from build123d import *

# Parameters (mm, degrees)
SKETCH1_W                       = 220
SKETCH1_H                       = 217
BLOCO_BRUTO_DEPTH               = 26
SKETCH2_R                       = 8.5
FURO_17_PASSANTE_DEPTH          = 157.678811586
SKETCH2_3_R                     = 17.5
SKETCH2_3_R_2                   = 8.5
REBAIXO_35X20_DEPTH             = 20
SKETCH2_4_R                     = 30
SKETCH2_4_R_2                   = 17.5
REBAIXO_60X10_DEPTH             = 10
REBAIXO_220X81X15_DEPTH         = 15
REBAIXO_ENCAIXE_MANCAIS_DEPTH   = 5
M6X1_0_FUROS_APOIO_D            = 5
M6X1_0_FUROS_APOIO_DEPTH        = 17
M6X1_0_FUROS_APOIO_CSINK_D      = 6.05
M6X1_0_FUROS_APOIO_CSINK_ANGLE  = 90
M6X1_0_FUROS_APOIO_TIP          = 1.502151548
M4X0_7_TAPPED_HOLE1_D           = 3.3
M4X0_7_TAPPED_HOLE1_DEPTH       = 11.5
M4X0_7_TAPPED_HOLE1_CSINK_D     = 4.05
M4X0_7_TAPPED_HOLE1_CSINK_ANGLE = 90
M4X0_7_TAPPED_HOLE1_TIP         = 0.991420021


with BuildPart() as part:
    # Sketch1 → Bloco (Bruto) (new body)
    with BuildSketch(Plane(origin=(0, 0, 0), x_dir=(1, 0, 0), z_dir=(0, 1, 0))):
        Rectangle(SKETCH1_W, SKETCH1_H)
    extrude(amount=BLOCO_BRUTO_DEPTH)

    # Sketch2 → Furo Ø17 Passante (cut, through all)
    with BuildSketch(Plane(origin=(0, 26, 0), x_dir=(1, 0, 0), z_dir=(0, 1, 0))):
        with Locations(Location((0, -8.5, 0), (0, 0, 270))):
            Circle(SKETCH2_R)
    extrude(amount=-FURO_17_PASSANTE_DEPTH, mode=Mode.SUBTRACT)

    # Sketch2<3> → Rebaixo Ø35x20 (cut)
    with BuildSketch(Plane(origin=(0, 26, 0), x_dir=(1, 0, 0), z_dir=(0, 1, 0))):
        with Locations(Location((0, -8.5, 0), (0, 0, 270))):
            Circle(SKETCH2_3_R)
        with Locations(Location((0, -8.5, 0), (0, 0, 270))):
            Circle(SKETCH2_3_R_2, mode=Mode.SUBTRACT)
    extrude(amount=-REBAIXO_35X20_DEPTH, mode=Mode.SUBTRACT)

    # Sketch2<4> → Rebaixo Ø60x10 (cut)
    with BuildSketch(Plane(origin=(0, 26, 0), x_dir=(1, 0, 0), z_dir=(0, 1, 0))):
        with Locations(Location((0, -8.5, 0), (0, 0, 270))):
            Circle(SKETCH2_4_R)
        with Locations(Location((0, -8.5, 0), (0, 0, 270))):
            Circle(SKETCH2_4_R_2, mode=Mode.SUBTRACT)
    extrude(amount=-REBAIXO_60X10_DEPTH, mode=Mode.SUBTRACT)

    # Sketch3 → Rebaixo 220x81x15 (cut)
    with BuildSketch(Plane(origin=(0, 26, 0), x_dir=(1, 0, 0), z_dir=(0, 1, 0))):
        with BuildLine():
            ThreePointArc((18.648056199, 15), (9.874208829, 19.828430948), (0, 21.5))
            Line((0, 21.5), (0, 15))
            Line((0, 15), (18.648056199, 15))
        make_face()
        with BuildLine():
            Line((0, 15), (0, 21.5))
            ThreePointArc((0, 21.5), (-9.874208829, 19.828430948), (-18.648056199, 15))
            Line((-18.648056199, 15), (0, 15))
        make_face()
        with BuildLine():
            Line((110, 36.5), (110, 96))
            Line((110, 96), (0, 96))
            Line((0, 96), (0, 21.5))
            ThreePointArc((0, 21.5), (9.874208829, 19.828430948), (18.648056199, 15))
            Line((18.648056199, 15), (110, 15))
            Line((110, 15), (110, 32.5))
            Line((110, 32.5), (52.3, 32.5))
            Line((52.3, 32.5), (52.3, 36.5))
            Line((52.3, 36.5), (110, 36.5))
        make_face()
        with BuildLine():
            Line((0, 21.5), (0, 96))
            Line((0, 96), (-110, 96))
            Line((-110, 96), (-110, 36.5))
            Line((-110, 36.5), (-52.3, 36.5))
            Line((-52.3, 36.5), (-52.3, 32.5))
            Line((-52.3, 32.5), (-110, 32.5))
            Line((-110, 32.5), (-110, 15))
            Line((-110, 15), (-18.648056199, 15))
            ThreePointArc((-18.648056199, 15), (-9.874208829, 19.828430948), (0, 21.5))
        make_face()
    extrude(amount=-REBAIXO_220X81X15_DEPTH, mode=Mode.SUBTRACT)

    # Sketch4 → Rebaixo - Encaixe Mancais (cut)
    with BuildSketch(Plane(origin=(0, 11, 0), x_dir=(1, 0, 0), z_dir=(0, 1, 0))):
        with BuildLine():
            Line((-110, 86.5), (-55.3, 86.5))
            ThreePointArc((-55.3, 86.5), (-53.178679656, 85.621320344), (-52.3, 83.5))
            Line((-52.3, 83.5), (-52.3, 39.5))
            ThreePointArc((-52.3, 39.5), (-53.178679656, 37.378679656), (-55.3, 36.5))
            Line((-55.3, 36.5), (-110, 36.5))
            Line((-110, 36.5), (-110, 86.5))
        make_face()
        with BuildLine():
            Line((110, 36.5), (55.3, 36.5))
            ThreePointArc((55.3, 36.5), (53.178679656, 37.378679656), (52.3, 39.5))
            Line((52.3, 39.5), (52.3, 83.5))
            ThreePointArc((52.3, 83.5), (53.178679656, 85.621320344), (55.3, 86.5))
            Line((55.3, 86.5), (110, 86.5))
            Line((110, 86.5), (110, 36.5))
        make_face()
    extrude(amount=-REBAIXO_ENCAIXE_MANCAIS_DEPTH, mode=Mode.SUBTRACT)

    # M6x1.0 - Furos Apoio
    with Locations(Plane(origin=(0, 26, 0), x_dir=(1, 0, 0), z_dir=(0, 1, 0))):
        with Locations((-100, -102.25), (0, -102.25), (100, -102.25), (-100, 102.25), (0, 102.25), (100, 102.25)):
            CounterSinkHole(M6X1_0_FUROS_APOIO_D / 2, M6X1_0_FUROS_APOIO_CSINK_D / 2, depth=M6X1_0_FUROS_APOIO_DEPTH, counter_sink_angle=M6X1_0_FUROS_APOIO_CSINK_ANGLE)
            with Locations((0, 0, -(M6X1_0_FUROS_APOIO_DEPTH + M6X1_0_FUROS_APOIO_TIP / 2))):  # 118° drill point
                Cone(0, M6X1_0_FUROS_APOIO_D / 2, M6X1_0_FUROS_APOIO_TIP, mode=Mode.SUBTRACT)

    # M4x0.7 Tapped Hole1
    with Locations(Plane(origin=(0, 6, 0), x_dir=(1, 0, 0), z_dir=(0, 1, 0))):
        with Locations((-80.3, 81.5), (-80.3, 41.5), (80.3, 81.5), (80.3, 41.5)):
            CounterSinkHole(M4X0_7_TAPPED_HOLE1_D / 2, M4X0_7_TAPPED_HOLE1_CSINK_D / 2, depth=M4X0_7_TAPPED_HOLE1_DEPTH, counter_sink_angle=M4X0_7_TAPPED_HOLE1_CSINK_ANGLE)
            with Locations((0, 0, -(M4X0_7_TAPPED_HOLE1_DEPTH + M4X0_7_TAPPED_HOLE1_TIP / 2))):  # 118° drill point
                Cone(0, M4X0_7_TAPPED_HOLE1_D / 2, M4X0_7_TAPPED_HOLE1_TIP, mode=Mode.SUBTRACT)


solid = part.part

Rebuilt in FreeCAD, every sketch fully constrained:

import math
import FreeCAD as App
import Part
import Sketcher
from FreeCAD import Vector
Q = App.Units.Quantity


def add_polygon(sketch, points):
    """Adds a closed chain of lines whose ends are joined by coincident constraints."""
    first, n = sketch.GeometryCount, len(points)
    for a, b in zip(points, points[1:] + points[:1]):
        sketch.addGeometry(Part.LineSegment(App.Vector(*a, 0), App.Vector(*b, 0)), False)
    for i in range(n):
        sketch.addConstraint(Sketcher.Constraint("Coincident", first + i, 2, first + (i + 1) % n, 1))

doc = App.newDocument("Part")
body = doc.addObject("PartDesign::Body", "Body")

sketch1 = doc.addObject("Sketcher::SketchObject", "Sketch")
body.addObject(sketch1)
sketch1.AttachmentSupport = (doc.XZ_Plane, [""])
sketch1.MapMode = "FlatFace"
add_polygon(sketch1, [(-110, -108), (-110, 108), (110, 108), (110, -108)])
sketch1.addConstraint(Sketcher.Constraint("Vertical", 0))
sketch1.addConstraint(Sketcher.Constraint("Horizontal", 1))
sketch1.addConstraint(Sketcher.Constraint("Vertical", 2))
sketch1.addConstraint(Sketcher.Constraint("Horizontal", 3))
sketch1.addConstraint(Sketcher.Constraint("Symmetric", 0, 2, 2, 2, -1, 1))
sketch1.addConstraint(Sketcher.Constraint("DistanceX", 1, 1, 1, 2, Q("220 mm")))
sketch1.addConstraint(Sketcher.Constraint("DistanceY", 0, 1, 0, 2, Q("217 mm")))
pad1 = doc.addObject("PartDesign::Pad", "Pad")
body.addObject(pad1)
pad1.Profile = sketch1
pad1.Length = 26
pad1.Reversed = True

sketch2 = doc.addObject("Sketcher::SketchObject", "Sketch001")
body.addObject(sketch2)
sketch2.AttachmentSupport = (doc.XZ_Plane, [""])
sketch2.MapMode = "FlatFace"
sketch2.AttachmentOffset = App.Placement(Vector(0, 0, -26), App.Rotation())
sketch2.addGeometry(Part.Circle(Vector(0, 8, 0), Vector(0, 0, 1), 8), False)
sketch2.addConstraint(Sketcher.Constraint("PointOnObject", 0, 3, -2))
sketch2.addConstraint(Sketcher.Constraint("Diameter", 0, Q("17 mm")))
sketch2.addConstraint(Sketcher.Constraint("DistanceY", -1, 1, 0, 3, Q("8.5 mm")))
pocket1 = doc.addObject("PartDesign::Pocket", "Pocket")
body.addObject(pocket1)
pocket1.Profile = sketch2
pocket1.Type = "ThroughAll"
pocket1.Reversed = True

sketch3 = doc.addObject("Sketcher::SketchObject", "Sketch002")
body.addObject(sketch3)
sketch3.AttachmentSupport = (doc.XZ_Plane, [""])
sketch3.MapMode = "FlatFace"
sketch3.AttachmentOffset = App.Placement(Vector(0, 0, -26), App.Rotation())
sketch3.addGeometry(Part.Circle(Vector(0, 8, 0), Vector(0, 0, 1), 18), False)
sketch3.addGeometry(Part.Circle(Vector(0, 8, 0), Vector(0, 0, 1), 8), False)
sketch3.addConstraint(Sketcher.Constraint("Coincident", 1, 3, 0, 3))
sketch3.addConstraint(Sketcher.Constraint("PointOnObject", 0, 3, -2))
sketch3.addConstraint(Sketcher.Constraint("Diameter", 0, Q("35 mm")))
sketch3.addConstraint(Sketcher.Constraint("Diameter", 1, Q("17 mm")))
sketch3.addConstraint(Sketcher.Constraint("DistanceY", -1, 1, 0, 3, Q("8.5 mm")))
pocket2 = doc.addObject("PartDesign::Pocket", "Pocket001")
body.addObject(pocket2)
pocket2.Profile = sketch3
pocket2.Length = 20
pocket2.Reversed = True

sketch4 = doc.addObject("Sketcher::SketchObject", "Sketch003")
body.addObject(sketch4)
sketch4.AttachmentSupport = (doc.XZ_Plane, [""])
sketch4.MapMode = "FlatFace"
sketch4.AttachmentOffset = App.Placement(Vector(0, 0, -26), App.Rotation())
sketch4.addGeometry(Part.Circle(Vector(0, 8, 0), Vector(0, 0, 1), 30), False)
sketch4.addGeometry(Part.Circle(Vector(0, 8, 0), Vector(0, 0, 1), 18), False)
sketch4.addConstraint(Sketcher.Constraint("Coincident", 1, 3, 0, 3))
sketch4.addConstraint(Sketcher.Constraint("PointOnObject", 0, 3, -2))
sketch4.addConstraint(Sketcher.Constraint("Diameter", 0, Q("60 mm")))
sketch4.addConstraint(Sketcher.Constraint("Diameter", 1, Q("35 mm")))
sketch4.addConstraint(Sketcher.Constraint("DistanceY", -1, 1, 0, 3, Q("8.5 mm")))
pocket3 = doc.addObject("PartDesign::Pocket", "Pocket002")
body.addObject(pocket3)
pocket3.Profile = sketch4
pocket3.Length = 10
pocket3.Reversed = True

sketch5 = doc.addObject("Sketcher::SketchObject", "Sketch004")
body.addObject(sketch5)
sketch5.AttachmentSupport = (doc.XZ_Plane, [""])
sketch5.MapMode = "FlatFace"
sketch5.AttachmentOffset = App.Placement(Vector(0, 0, -26), App.Rotation())
add_polygon(sketch5, [(110, -15), (110, -32.5), (52.3, -32.5), (52.3, -36.5), (110, -36.5), (110, -96), (-110, -96), (-110, -36.5), (-52.3, -36.5), (-52.3, -32.5), (-110, -32.5), (-110, -15)])
sketch5.addConstraint(Sketcher.Constraint("Vertical", 0))
sketch5.addConstraint(Sketcher.Constraint("Horizontal", 1))
sketch5.addConstraint(Sketcher.Constraint("Vertical", 2))
sketch5.addConstraint(Sketcher.Constraint("Horizontal", 3))
sketch5.addConstraint(Sketcher.Constraint("Vertical", 4))
sketch5.addConstraint(Sketcher.Constraint("Horizontal", 5))
sketch5.addConstraint(Sketcher.Constraint("Vertical", 6))
sketch5.addConstraint(Sketcher.Constraint("Horizontal", 7))
sketch5.addConstraint(Sketcher.Constraint("Vertical", 8))
sketch5.addConstraint(Sketcher.Constraint("Horizontal", 9))
sketch5.addConstraint(Sketcher.Constraint("Vertical", 10))
sketch5.addConstraint(Sketcher.Constraint("Horizontal", 11))
sketch5.addConstraint(Sketcher.Constraint("Symmetric", 3, 2, 6, 2, -2))
sketch5.addConstraint(Sketcher.Constraint("Symmetric", 1, 2, 8, 2, -2))
sketch5.addConstraint(Sketcher.Constraint("Vertical", 0, 2, 3, 2))
sketch5.addConstraint(Sketcher.Constraint("Vertical", 6, 2, 9, 2))
sketch5.addConstraint(Sketcher.Constraint("DistanceX", 5, 2, 5, 1, Q("220 mm")))
sketch5.addConstraint(Sketcher.Constraint("DistanceY", 2, 2, 2, 1, Q("4 mm")))
sketch5.addConstraint(Sketcher.Constraint("DistanceX", 1, 2, 1, 1, Q("57.7 mm")))
sketch5.addConstraint(Sketcher.Constraint("DistanceY", 0, 2, 0, 1, Q("17.5 mm")))
sketch5.addConstraint(Sketcher.Constraint("DistanceY", 4, 2, 4, 1, Q("59.5 mm")))
sketch5.addConstraint(Sketcher.Constraint("DistanceY", 4, 2, -1, 1, Q("96 mm")))
pocket4 = doc.addObject("PartDesign::Pocket", "Pocket003")
body.addObject(pocket4)
pocket4.Profile = sketch5
pocket4.Length = 15
pocket4.Reversed = True

sketch6 = doc.addObject("Sketcher::SketchObject", "Sketch005")
body.addObject(sketch6)
sketch6.AttachmentSupport = (doc.XZ_Plane, [""])
sketch6.MapMode = "FlatFace"
sketch6.AttachmentOffset = App.Placement(Vector(0, 0, -11), App.Rotation())
sketch6.addGeometry(Part.LineSegment(Vector(-55.3, -86.5, 0), Vector(-110, -86.5, 0)), False)
sketch6.addGeometry(Part.LineSegment(Vector(-110, -86.5, 0), Vector(-110, -36.5, 0)), False)
sketch6.addGeometry(Part.LineSegment(Vector(-110, -36.5, 0), Vector(-55.3, -36.5, 0)), False)
sketch6.addGeometry(Part.ArcOfCircle(Part.Circle(Vector(-55.3, -39.5, 0), Vector(0, 0, 1), 3), math.radians(0), math.radians(90)), False)
sketch6.addGeometry(Part.LineSegment(Vector(-52.3, -39.5, 0), Vector(-52.3, -83.5, 0)), False)
sketch6.addGeometry(Part.ArcOfCircle(Part.Circle(Vector(-55.3, -83.5, 0), Vector(0, 0, 1), 3), math.radians(-90), math.radians(0)), False)
sketch6.addGeometry(Part.LineSegment(Vector(55.3, -36.5, 0), Vector(110, -36.5, 0)), False)
sketch6.addGeometry(Part.LineSegment(Vector(110, -36.5, 0), Vector(110, -86.5, 0)), False)
sketch6.addGeometry(Part.LineSegment(Vector(110, -86.5, 0), Vector(55.3, -86.5, 0)), False)
sketch6.addGeometry(Part.ArcOfCircle(Part.Circle(Vector(55.3, -83.5, 0), Vector(0, 0, 1), 3), math.radians(180), math.radians(270)), False)
sketch6.addGeometry(Part.LineSegment(Vector(52.3, -83.5, 0), Vector(52.3, -39.5, 0)), False)
sketch6.addGeometry(Part.ArcOfCircle(Part.Circle(Vector(55.3, -39.5, 0), Vector(0, 0, 1), 3), math.radians(90), math.radians(180)), False)
sketch6.addConstraint(Sketcher.Constraint("Coincident", 0, 2, 1, 1))
sketch6.addConstraint(Sketcher.Constraint("Coincident", 1, 2, 2, 1))
sketch6.addConstraint(Sketcher.Constraint("Tangent", 2, 2, 3, 2))
sketch6.addConstraint(Sketcher.Constraint("Tangent", 3, 1, 4, 1))
sketch6.addConstraint(Sketcher.Constraint("Tangent", 4, 2, 5, 2))
sketch6.addConstraint(Sketcher.Constraint("Tangent", 5, 1, 0, 1))
sketch6.addConstraint(Sketcher.Constraint("Coincident", 6, 2, 7, 1))
sketch6.addConstraint(Sketcher.Constraint("Coincident", 7, 2, 8, 1))
sketch6.addConstraint(Sketcher.Constraint("Tangent", 8, 2, 9, 2))
sketch6.addConstraint(Sketcher.Constraint("Tangent", 9, 1, 10, 1))
sketch6.addConstraint(Sketcher.Constraint("Tangent", 10, 2, 11, 2))
sketch6.addConstraint(Sketcher.Constraint("Tangent", 11, 1, 6, 1))
sketch6.addConstraint(Sketcher.Constraint("Horizontal", 0))
sketch6.addConstraint(Sketcher.Constraint("Vertical", 1))
sketch6.addConstraint(Sketcher.Constraint("Horizontal", 2))
sketch6.addConstraint(Sketcher.Constraint("Vertical", 4))
sketch6.addConstraint(Sketcher.Constraint("Horizontal", 6))
sketch6.addConstraint(Sketcher.Constraint("Vertical", 7))
sketch6.addConstraint(Sketcher.Constraint("Horizontal", 8))
sketch6.addConstraint(Sketcher.Constraint("Vertical", 10))
sketch6.addConstraint(Sketcher.Constraint("Equal", 3, 5))
sketch6.addConstraint(Sketcher.Constraint("Equal", 5, 9))
sketch6.addConstraint(Sketcher.Constraint("Equal", 9, 11))
sketch6.addConstraint(Sketcher.Constraint("Symmetric", 5, 3, 9, 3, -2))
sketch6.addConstraint(Sketcher.Constraint("Symmetric", 1, 2, 6, 2, -2))
sketch6.addConstraint(Sketcher.Constraint("Radius", 3, Q("3 mm")))
sketch6.addConstraint(Sketcher.Constraint("DistanceY", 1, 1, 1, 2, Q("50 mm")))
sketch6.addConstraint(Sketcher.Constraint("DistanceX", 0, 2, 0, 1, Q("54.7 mm")))
sketch6.addConstraint(Sketcher.Constraint("DistanceX", 0, 2, -1, 1, Q("110 mm")))
sketch6.addConstraint(Sketcher.Constraint("DistanceY", 3, 3, -1, 1, Q("39.5 mm")))
pocket5 = doc.addObject("PartDesign::Pocket", "Pocket004")
body.addObject(pocket5)
pocket5.Profile = sketch6
pocket5.Length = 5
pocket5.Reversed = True

sketch7 = doc.addObject("Sketcher::SketchObject", "Sketch006")
body.addObject(sketch7)
sketch7.AttachmentSupport = (doc.XZ_Plane, [""])
sketch7.MapMode = "FlatFace"
sketch7.AttachmentOffset = App.Placement(Vector(0, 0, -26), App.Rotation())
sketch7.addGeometry(Part.Circle(Vector(-100, 102.2, 0), Vector(0, 0, 1), 2.5), False)
sketch7.addGeometry(Part.Circle(Vector(0, 102.2, 0), Vector(0, 0, 1), 2.5), False)
sketch7.addGeometry(Part.Circle(Vector(100, 102.2, 0), Vector(0, 0, 1), 2.5), False)
sketch7.addGeometry(Part.Circle(Vector(-100, -102.2, 0), Vector(0, 0, 1), 2.5), False)
sketch7.addGeometry(Part.Circle(Vector(0, -102.2, 0), Vector(0, 0, 1), 2.5), False)
sketch7.addGeometry(Part.Circle(Vector(100, -102.2, 0), Vector(0, 0, 1), 2.5), False)
sketch7.addConstraint(Sketcher.Constraint("Equal", 0, 1))
sketch7.addConstraint(Sketcher.Constraint("Equal", 1, 2))
sketch7.addConstraint(Sketcher.Constraint("Equal", 2, 3))
sketch7.addConstraint(Sketcher.Constraint("Equal", 3, 4))
sketch7.addConstraint(Sketcher.Constraint("Equal", 4, 5))
sketch7.addConstraint(Sketcher.Constraint("Symmetric", 2, 3, 3, 3, -1, 1))
sketch7.addConstraint(Sketcher.Constraint("Symmetric", 1, 3, 4, 3, -1, 1))
sketch7.addConstraint(Sketcher.Constraint("Symmetric", 0, 3, 5, 3, -1, 1))
sketch7.addConstraint(Sketcher.Constraint("Symmetric", 0, 3, 2, 3, -2))
sketch7.addConstraint(Sketcher.Constraint("PointOnObject", 1, 3, -2))
sketch7.addConstraint(Sketcher.Constraint("Horizontal", 0, 3, 1, 3))
sketch7.addConstraint(Sketcher.Constraint("Diameter", 0, Q("5 mm")))
sketch7.addConstraint(Sketcher.Constraint("DistanceX", 0, 3, -1, 1, Q("100 mm")))
sketch7.addConstraint(Sketcher.Constraint("DistanceY", 3, 3, 0, 3, Q("204.5 mm")))
doc.recompute()
hole = doc.addObject("PartDesign::Hole", "Hole")
body.addObject(hole)
hole.Profile = sketch7
hole.ThreadType = "None"
hole.Diameter = 5
hole.DepthType = "Dimension"
hole.Depth = 17
hole.DrillPoint = "Angled"
hole.DrillPointAngle = 118
hole.HoleCutType = "Countersink"
hole.HoleCutDiameter = 6.05
hole.HoleCutCountersinkAngle = 90
hole.Reversed = True

sketch8 = doc.addObject("Sketcher::SketchObject", "Sketch007")
body.addObject(sketch8)
sketch8.AttachmentSupport = (doc.XZ_Plane, [""])
sketch8.MapMode = "FlatFace"
sketch8.AttachmentOffset = App.Placement(Vector(0, 0, -6), App.Rotation())
sketch8.addGeometry(Part.Circle(Vector(-80.3, -81.5, 0), Vector(0, 0, 1), 1.6), False)
sketch8.addGeometry(Part.Circle(Vector(-80.3, -41.5, 0), Vector(0, 0, 1), 1.6), False)
sketch8.addGeometry(Part.Circle(Vector(80.3, -81.5, 0), Vector(0, 0, 1), 1.6), False)
sketch8.addGeometry(Part.Circle(Vector(80.3, -41.5, 0), Vector(0, 0, 1), 1.6), False)
sketch8.addConstraint(Sketcher.Constraint("Equal", 0, 1))
sketch8.addConstraint(Sketcher.Constraint("Equal", 1, 2))
sketch8.addConstraint(Sketcher.Constraint("Equal", 2, 3))
sketch8.addConstraint(Sketcher.Constraint("Symmetric", 0, 3, 2, 3, -2))
sketch8.addConstraint(Sketcher.Constraint("Symmetric", 1, 3, 3, 3, -2))
sketch8.addConstraint(Sketcher.Constraint("Vertical", 0, 3, 1, 3))
sketch8.addConstraint(Sketcher.Constraint("Diameter", 0, Q("3.3 mm")))
sketch8.addConstraint(Sketcher.Constraint("DistanceY", 0, 3, 1, 3, Q("40 mm")))
sketch8.addConstraint(Sketcher.Constraint("DistanceX", 0, 3, -1, 1, Q("80.3 mm")))
sketch8.addConstraint(Sketcher.Constraint("DistanceY", 0, 3, -1, 1, Q("81.5 mm")))
doc.recompute()
hole2 = doc.addObject("PartDesign::Hole", "Hole001")
body.addObject(hole2)
hole2.Profile = sketch8
hole2.ThreadType = "None"
hole2.Diameter = 3.3
hole2.DepthType = "Dimension"
hole2.Depth = 11.5
hole2.DrillPoint = "Angled"
hole2.DrillPointAngle = 118
hole2.HoleCutType = "Countersink"
hole2.HoleCutDiameter = 4.05
hole2.HoleCutCountersinkAngle = 90
hole2.Reversed = True

doc.recompute()
